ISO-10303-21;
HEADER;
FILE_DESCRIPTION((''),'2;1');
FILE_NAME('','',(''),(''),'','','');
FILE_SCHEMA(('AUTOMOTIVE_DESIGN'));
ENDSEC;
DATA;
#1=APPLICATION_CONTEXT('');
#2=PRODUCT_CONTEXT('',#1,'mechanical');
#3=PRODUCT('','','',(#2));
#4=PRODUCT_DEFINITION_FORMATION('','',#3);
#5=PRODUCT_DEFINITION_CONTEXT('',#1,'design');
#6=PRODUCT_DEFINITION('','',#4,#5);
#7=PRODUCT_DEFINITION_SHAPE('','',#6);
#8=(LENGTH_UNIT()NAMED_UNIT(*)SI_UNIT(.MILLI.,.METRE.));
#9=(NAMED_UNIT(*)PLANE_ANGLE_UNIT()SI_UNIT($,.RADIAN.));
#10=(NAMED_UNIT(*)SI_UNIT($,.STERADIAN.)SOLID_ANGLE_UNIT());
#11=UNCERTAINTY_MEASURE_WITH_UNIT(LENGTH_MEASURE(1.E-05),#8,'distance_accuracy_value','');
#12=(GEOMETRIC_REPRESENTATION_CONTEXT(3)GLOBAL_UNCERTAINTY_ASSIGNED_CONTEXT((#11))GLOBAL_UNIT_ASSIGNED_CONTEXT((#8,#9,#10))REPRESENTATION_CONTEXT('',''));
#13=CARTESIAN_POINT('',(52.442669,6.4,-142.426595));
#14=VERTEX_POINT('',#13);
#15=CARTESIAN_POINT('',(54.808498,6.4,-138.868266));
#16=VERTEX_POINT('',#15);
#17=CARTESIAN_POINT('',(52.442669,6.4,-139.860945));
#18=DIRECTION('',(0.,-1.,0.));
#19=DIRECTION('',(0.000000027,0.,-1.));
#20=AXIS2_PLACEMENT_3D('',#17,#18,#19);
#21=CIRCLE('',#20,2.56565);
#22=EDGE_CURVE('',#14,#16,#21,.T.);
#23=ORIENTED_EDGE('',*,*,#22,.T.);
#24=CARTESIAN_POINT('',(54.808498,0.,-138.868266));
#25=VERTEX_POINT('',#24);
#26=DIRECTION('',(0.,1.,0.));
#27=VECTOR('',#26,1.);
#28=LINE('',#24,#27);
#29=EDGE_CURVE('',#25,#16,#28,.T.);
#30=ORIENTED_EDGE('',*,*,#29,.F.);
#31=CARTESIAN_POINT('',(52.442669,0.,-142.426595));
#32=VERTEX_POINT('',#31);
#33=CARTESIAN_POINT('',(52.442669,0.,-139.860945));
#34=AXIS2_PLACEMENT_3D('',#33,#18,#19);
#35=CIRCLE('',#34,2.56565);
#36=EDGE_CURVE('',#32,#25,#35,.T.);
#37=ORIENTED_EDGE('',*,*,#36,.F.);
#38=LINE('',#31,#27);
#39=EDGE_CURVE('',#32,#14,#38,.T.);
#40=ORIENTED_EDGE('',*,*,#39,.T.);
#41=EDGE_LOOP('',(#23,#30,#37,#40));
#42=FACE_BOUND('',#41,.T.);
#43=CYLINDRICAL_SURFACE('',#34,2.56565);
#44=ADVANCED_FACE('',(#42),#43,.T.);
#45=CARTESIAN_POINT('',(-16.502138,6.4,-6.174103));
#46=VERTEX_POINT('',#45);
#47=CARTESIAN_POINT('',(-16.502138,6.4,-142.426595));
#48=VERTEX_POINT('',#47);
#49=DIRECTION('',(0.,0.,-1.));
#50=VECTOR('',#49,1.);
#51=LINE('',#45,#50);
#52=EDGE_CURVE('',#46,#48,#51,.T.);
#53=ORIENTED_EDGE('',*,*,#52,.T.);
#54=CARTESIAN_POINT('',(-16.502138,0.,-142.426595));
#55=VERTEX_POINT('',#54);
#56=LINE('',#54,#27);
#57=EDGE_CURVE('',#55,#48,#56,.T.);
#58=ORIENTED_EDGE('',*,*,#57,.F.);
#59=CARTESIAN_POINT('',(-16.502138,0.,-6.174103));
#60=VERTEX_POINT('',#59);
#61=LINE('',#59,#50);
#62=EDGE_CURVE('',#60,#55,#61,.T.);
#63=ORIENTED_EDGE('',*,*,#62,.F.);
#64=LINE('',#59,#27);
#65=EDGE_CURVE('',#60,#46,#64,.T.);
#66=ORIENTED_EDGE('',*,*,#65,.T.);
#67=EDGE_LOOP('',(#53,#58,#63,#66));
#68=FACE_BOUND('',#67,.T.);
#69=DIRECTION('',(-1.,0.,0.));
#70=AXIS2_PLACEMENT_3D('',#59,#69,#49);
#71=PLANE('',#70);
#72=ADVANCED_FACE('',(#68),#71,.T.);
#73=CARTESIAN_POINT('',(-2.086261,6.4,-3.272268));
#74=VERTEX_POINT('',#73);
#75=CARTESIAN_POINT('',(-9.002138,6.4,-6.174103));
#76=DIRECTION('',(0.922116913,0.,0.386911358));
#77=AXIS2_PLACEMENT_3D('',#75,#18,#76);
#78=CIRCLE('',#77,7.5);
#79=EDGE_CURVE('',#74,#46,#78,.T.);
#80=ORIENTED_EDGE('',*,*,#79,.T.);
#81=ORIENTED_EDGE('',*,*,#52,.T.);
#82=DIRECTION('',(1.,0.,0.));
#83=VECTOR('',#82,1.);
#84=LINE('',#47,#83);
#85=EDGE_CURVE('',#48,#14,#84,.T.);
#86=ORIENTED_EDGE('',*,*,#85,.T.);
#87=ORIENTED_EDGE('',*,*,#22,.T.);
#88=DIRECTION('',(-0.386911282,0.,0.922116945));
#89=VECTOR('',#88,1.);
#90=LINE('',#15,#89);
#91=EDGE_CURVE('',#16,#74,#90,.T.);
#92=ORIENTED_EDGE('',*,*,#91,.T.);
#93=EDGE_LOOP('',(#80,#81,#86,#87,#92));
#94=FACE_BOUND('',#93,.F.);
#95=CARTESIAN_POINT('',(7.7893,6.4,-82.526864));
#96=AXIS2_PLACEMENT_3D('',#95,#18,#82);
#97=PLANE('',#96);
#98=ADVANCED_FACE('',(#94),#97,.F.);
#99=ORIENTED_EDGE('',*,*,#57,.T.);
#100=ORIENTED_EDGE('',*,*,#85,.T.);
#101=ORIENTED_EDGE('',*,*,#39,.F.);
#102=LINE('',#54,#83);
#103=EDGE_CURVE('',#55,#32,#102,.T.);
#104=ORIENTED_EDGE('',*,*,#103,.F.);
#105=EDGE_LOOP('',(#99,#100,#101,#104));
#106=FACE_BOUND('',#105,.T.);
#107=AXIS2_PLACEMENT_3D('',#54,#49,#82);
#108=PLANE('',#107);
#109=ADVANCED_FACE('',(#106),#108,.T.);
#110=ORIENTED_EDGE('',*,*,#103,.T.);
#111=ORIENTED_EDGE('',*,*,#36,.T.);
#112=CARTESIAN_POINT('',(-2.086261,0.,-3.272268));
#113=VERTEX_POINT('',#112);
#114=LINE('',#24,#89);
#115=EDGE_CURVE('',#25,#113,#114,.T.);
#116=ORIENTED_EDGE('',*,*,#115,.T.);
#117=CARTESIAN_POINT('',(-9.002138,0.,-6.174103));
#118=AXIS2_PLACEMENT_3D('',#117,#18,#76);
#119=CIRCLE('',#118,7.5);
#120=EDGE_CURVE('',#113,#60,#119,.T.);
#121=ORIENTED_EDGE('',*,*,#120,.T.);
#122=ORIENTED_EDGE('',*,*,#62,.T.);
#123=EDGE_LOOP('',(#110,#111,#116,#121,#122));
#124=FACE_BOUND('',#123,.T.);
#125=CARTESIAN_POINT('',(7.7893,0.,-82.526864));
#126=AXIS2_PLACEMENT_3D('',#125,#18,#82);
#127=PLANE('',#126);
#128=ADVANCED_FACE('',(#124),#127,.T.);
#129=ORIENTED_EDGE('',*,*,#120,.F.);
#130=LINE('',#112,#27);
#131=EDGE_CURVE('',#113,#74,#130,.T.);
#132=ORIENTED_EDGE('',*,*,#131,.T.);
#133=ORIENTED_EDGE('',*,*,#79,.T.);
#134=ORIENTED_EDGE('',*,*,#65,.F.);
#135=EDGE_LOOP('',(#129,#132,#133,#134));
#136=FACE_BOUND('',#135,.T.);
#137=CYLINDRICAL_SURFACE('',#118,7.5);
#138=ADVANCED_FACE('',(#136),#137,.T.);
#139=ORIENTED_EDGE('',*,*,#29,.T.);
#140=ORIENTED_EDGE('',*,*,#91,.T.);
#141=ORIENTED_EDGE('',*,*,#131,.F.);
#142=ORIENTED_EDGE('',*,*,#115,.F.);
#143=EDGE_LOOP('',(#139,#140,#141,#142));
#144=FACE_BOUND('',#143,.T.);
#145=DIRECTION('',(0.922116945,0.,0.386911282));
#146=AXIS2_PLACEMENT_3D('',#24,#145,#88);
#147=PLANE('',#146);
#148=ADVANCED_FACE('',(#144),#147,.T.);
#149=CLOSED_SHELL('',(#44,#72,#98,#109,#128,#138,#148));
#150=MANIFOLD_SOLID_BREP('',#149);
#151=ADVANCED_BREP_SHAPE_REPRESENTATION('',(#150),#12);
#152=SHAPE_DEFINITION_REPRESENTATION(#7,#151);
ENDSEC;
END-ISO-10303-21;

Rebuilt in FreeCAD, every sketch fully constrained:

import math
import FreeCAD as App
import Part
import Sketcher
Q = App.Units.Quantity

doc = App.newDocument("Part")
body = doc.addObject("PartDesign::Body", "Body")

# Sketch on XZ plane
sketch1 = doc.addObject("Sketcher::SketchObject", "Sketch")
body.addObject(sketch1)
sketch1.AttachmentSupport = (doc.XZ_Plane, [""])
sketch1.MapMode = "FlatFace"
sketch1.addGeometry([
    Part.LineSegment(App.Vector(-16.5, -6.2, 0), App.Vector(-16.5, -142.4, 0)),  # 0
    Part.LineSegment(App.Vector(-16.5, -142.4, 0), App.Vector(52.4, -142.4, 0)),  # 1
    Part.ArcOfCircle(Part.Circle(App.Vector(52.4, -139.9, 0), App.Vector(0, 0, 1), 2.6), math.radians(-90), math.radians(23)),  # 2
    Part.LineSegment(App.Vector(54.8, -138.9, 0), App.Vector(-2.1, -3.3, 0)),  # 3
    Part.ArcOfCircle(Part.Circle(App.Vector(-9, -6.2, 0), App.Vector(0, 0, 1), 7.5), math.radians(23), math.radians(180)),  # 4
], False)
sketch1.addConstraint([
    Sketcher.Constraint("Coincident", 0, 2, 1, 1),
    Sketcher.Constraint("Tangent", 1, 2, 2, 1),
    Sketcher.Constraint("Tangent", 2, 2, 3, 1),
    Sketcher.Constraint("Tangent", 3, 2, 4, 1),
    Sketcher.Constraint("Tangent", 4, 2, 0, 1),
    Sketcher.Constraint("Vertical", 0),
    Sketcher.Constraint("Horizontal", 1),
    Sketcher.Constraint("Radius", 4, Q("7.5 mm")),
    Sketcher.Constraint("Radius", 2, Q("2.56565 mm")),
    Sketcher.Constraint("DistanceY", 2, 2, 3, 2, Q("135.595998 mm")),
    Sketcher.Constraint("DistanceY", 0, 2, 0, 1, Q("136.252492 mm")),
    Sketcher.Constraint("DistanceX", -1, 1, 2, 3, Q("52.442669 mm")),
    Sketcher.Constraint("DistanceY", 3, 2, -1, 1, Q("3.272268 mm")),
])
pad1 = doc.addObject("PartDesign::Pad", "Pad")
body.addObject(pad1)
pad1.Profile = sketch1
pad1.Length = 6.4
pad1.Reversed = True

doc.recompute()
